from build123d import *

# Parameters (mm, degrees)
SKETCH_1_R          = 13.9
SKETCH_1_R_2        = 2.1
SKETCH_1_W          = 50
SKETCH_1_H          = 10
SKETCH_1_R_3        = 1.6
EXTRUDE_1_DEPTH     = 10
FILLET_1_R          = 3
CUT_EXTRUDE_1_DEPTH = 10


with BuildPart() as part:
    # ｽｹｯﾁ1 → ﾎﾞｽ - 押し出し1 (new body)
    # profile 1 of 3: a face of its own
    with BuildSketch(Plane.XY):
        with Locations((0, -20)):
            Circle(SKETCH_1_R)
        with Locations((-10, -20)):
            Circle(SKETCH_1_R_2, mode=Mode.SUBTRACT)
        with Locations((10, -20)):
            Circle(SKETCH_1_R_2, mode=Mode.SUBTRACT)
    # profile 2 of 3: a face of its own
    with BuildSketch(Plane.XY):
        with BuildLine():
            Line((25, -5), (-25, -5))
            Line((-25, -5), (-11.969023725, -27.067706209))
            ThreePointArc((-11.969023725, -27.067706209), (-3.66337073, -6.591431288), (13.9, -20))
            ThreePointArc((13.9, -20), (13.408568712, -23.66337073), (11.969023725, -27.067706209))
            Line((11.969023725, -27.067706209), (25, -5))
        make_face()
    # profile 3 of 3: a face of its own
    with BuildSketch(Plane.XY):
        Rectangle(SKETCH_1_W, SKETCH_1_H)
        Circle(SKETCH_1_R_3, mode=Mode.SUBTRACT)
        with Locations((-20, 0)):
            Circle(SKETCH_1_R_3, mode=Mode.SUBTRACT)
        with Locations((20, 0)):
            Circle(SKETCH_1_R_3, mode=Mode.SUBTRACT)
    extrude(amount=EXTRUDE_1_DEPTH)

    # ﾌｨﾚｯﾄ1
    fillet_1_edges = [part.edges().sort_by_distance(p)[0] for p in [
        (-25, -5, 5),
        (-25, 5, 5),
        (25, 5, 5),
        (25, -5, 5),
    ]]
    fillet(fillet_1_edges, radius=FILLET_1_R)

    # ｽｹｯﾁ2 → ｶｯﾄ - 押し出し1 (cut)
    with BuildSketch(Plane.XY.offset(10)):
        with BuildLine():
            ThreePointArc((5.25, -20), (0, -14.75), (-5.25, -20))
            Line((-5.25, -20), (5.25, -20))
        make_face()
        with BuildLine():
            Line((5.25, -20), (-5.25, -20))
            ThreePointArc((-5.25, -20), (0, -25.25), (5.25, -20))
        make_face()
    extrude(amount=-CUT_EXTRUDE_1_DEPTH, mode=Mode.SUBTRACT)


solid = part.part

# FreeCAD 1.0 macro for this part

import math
import FreeCAD as App
import Part
import Sketcher
Q = App.Units.Quantity


def edges_at(feature, points):
    """Names of the edges that pass closest to the given points."""
    edges = feature.Shape.Edges
    near = lambda p: min(range(len(edges)), key=lambda i: edges[i].distToShape(Part.Vertex(*p))[0])
    return sorted({f"Edge{near(p) + 1}" for p in points})

doc = App.newDocument("Part")
body = doc.addObject("PartDesign::Body", "Body")

sketch1 = body.newObject("Sketcher::SketchObject", "Sketch")
sketch1.AttachmentSupport = (doc.getObject("XY_Plane"), [""])
sketch1.MapMode = "FlatFace"
sketch1.addGeometry(Part.ArcOfCircle(Part.Circle(App.Vector(0, -20, 0), App.Vector(0, 0, 1), 13.9), math.radians(-149), math.radians(-31)), False)
sketch1.addGeometry(Part.LineSegment(App.Vector(12, -27.1, 0), App.Vector(25, -5, 0)), False)
sketch1.addGeometry(Part.LineSegment(App.Vector(25, -5, 0), App.Vector(25, 5, 0)), False)
sketch1.addGeometry(Part.LineSegment(App.Vector(25, 5, 0), App.Vector(-25, 5, 0)), False)
sketch1.addGeometry(Part.LineSegment(App.Vector(-25, 5, 0), App.Vector(-25, -5, 0)), False)
sketch1.addGeometry(Part.LineSegment(App.Vector(-25, -5, 0), App.Vector(-12, -27.1, 0)), False)
sketch1.addGeometry(Part.Circle(App.Vector(-10, -20, 0), App.Vector(0, 0, 1), 2.1), False)
sketch1.addGeometry(Part.Circle(App.Vector(10, -20, 0), App.Vector(0, 0, 1), 2.1), False)
sketch1.addGeometry(Part.Circle(App.Vector(20, 0, 0), App.Vector(0, 0, 1), 1.6), False)
sketch1.addGeometry(Part.Circle(App.Vector(-20, 0, 0), App.Vector(0, 0, 1), 1.6), False)
sketch1.addGeometry(Part.Circle(App.Vector(0, 0, 0), App.Vector(0, 0, 1), 1.6), False)
sketch1.addConstraint(Sketcher.Constraint("Tangent", 0, 2, 1, 1))
sketch1.addConstraint(Sketcher.Constraint("Coincident", 1, 2, 2, 1))
sketch1.addConstraint(Sketcher.Constraint("Coincident", 2, 2, 3, 1))
sketch1.addConstraint(Sketcher.Constraint("Coincident", 3, 2, 4, 1))
sketch1.addConstraint(Sketcher.Constraint("Coincident", 4, 2, 5, 1))
sketch1.addConstraint(Sketcher.Constraint("Tangent", 5, 2, 0, 1))
sketch1.addConstraint(Sketcher.Constraint("Vertical", 2))
sketch1.addConstraint(Sketcher.Constraint("Horizontal", 3))
sketch1.addConstraint(Sketcher.Constraint("Vertical", 4))
sketch1.addConstraint(Sketcher.Constraint("Coincident", 10, 3, -1, 1))
sketch1.addConstraint(Sketcher.Constraint("Equal", 6, 7))
sketch1.addConstraint(Sketcher.Constraint("Equal", 8, 9))
sketch1.addConstraint(Sketcher.Constraint("Equal", 9, 10))
sketch1.addConstraint(Sketcher.Constraint("Symmetric", 8, 3, 9, 3, -1, 1))
sketch1.addConstraint(Sketcher.Constraint("Symmetric", 1, 2, 3, 2, -1, 1))
sketch1.addConstraint(Sketcher.Constraint("Symmetric", 6, 3, 7, 3, -2))
sketch1.addConstraint(Sketcher.Constraint("Symmetric", 0, 2, 5, 2, -2))
sketch1.addConstraint(Sketcher.Constraint("PointOnObject", 8, 3, -1))
sketch1.addConstraint(Sketcher.Constraint("Horizontal", 0, 3, 6, 3))
sketch1.addConstraint(Sketcher.Constraint("Diameter", 6, Q("4.2 mm")))
sketch1.addConstraint(Sketcher.Constraint("Diameter", 8, Q("3.2 mm")))
sketch1.addConstraint(Sketcher.Constraint("Radius", 0, Q("13.9 mm")))
sketch1.addConstraint(Sketcher.Constraint("DistanceX", 3, 2, 3, 1, Q("50 mm")))
sketch1.addConstraint(Sketcher.Constraint("DistanceY", 2, 1, 2, 2, Q("10 mm")))
sketch1.addConstraint(Sketcher.Constraint("DistanceY", 0, 3, -1, 1, Q("20 mm")))
sketch1.addConstraint(Sketcher.Constraint("DistanceX", 6, 3, -1, 1, Q("10 mm")))
sketch1.addConstraint(Sketcher.Constraint("DistanceX", -1, 1, 8, 3, Q("20 mm")))
pad1 = body.newObject("PartDesign::Pad", "Pad")
pad1.Profile = sketch1
pad1.Length = 10
doc.recompute()

fillet = body.newObject("PartDesign::Fillet", "Fillet")
fillet.Base = (pad1, edges_at(pad1, [
    (-25, -5, 5),
    (-25, 5, 5),
    (25, 5, 5),
    (25, -5, 5),
]))
fillet.Radius = 3

sketch2 = body.newObject("Sketcher::SketchObject", "Sketch001")
sketch2.AttachmentSupport = (doc.getObject("XY_Plane"), [""])
sketch2.MapMode = "FlatFace"
sketch2.AttachmentOffset = App.Placement(App.Vector(0, 0, 10), App.Rotation())
sketch2.addGeometry(Part.Circle(App.Vector(0, -20, 0), App.Vector(0, 0, 1), 5), False)
sketch2.addConstraint(Sketcher.Constraint("PointOnObject", 0, 3, -2))
sketch2.addConstraint(Sketcher.Constraint("Diameter", 0, Q("10.5 mm")))
sketch2.addConstraint(Sketcher.Constraint("DistanceY", 0, 3, -1, 1, Q("20 mm")))
pocket1 = body.newObject("PartDesign::Pocket", "Pocket")
pocket1.Profile = sketch2
pocket1.Length = 10

doc.recompute()
